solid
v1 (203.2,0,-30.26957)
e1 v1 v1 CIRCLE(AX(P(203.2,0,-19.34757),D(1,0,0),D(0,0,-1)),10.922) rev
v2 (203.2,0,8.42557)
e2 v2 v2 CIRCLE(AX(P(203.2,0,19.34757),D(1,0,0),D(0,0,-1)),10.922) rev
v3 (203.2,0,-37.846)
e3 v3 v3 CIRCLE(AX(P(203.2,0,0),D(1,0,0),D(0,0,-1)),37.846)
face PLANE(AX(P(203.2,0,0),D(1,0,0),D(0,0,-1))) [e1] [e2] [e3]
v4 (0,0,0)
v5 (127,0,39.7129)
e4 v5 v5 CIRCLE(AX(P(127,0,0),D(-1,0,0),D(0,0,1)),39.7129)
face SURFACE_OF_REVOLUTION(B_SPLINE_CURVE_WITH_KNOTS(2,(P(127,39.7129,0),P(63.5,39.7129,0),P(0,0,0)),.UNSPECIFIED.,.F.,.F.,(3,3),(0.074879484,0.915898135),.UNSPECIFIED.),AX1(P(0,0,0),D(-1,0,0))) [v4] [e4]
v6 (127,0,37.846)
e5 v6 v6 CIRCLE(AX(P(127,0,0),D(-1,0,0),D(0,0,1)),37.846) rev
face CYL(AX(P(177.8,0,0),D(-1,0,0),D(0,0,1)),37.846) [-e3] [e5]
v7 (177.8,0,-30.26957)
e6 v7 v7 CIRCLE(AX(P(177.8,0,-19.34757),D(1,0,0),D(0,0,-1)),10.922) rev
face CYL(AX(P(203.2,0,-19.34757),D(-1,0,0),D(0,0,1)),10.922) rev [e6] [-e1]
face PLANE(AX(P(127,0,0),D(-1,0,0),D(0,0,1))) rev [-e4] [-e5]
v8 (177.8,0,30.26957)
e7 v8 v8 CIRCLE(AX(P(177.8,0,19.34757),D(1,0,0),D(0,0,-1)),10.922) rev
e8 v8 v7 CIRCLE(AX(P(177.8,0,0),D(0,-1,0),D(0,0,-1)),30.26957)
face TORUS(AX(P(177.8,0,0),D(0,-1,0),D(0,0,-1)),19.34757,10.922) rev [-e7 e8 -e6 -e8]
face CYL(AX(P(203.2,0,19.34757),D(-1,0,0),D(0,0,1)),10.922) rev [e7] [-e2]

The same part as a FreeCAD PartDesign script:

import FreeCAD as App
import Part
import Sketcher
from FreeCAD import Vector
Q = App.Units.Quantity

doc = App.newDocument("Part")
params = doc.addObject("Spreadsheet::Sheet", "Params")
for row, (alias, value) in enumerate([
    ("revolution_angle", "360 deg"),
    ("sketch2_diameter", "2.98 in"),
    ("pad1_length", "2 in"),
    ("sketch3_diameter", "0.86 in"),
    ("groove_angle", "360 deg"),
    ("sketch4_diameter", "2.98 in"),
    ("sketch4_diameter2", "0.86 in"),
    ("pad2_length", "1 in"),
], start=1):
    params.set(f"A{row}", alias)
    params.set(f"B{row}", "=" + value)
    params.setAlias(f"B{row}", alias)

body = doc.addObject("PartDesign::Body", "Body")

sketch1 = body.newObject("Sketcher::SketchObject", "Sketch")
sketch1.AttachmentSupport = (doc.getObject("XY_Plane"), [""])
sketch1.MapMode = "FlatFace"
sketch1.addGeometry(Part.LineSegment(Vector(127, 0, 0), Vector(127, 39.7129, 0)), False)
sketch1.addGeometry(Part.BSplineCurve([Vector(0, 0, 0), Vector(63.5, 39.7129, 0), Vector(127, 39.7129, 0)], [3, 3], [0.074879484, 0.915898135], False, 2, [1, 1, 1], False), False)
sketch1.addGeometry(Part.LineSegment(Vector(0, 0, 0), Vector(127, 0, 0)), False)
sketch1.addConstraint(Sketcher.Constraint("Block", 1))
sketch1.addConstraint(Sketcher.Constraint("Coincident", 0, 2, 1, 2))
sketch1.addConstraint(Sketcher.Constraint("Coincident", 1, 1, 2, 1))
sketch1.addConstraint(Sketcher.Constraint("Coincident", 2, 2, 0, 1))
sketch1.addConstraint(Sketcher.Constraint("Vertical", 0))
sketch1.addConstraint(Sketcher.Constraint("Horizontal", 2))
revolution = body.newObject("PartDesign::Revolution", "Revolution")
revolution.Profile = sketch1
revolution.ReferenceAxis = (sketch1, ["H_Axis"])
revolution.setExpression("Angle", "Params.revolution_angle")

sketch2 = body.newObject("Sketcher::SketchObject", "Sketch001")
sketch2.AttachmentSupport = (doc.getObject("YZ_Plane"), [""])
sketch2.MapMode = "FlatFace"
sketch2.AttachmentOffset = App.Placement(Vector(0, 0, 5 * 25.4), App.Rotation())
sketch2.addGeometry(Part.Circle(Vector(0, 0, 0), Vector(0, 0, 1), 37.846), False)
sketch2.addConstraint(Sketcher.Constraint("Coincident", 0, 3, -1, 1))
sketch2.addConstraint(Sketcher.Constraint("Diameter", 0, Q("2.98 in")))
sketch2.setExpression("Constraints[1]", "Params.sketch2_diameter")
pad1 = body.newObject("PartDesign::Pad", "Pad")
pad1.Profile = sketch2
pad1.setExpression("Length", "Params.pad1_length")

sketch3 = body.newObject("Sketcher::SketchObject", "Sketch002")
sketch3.AttachmentSupport = (doc.getObject("YZ_Plane"), [""])
sketch3.MapMode = "FlatFace"
sketch3.AttachmentOffset = App.Placement(Vector(0, 0, 7 * 25.4), App.Rotation())
sketch3.addGeometry(Part.Circle(Vector(0, 19.34757, 0), Vector(0, 0, 1), 10.922), False)
sketch3.addConstraint(Sketcher.Constraint("PointOnObject", 0, 3, -2))
sketch3.addConstraint(Sketcher.Constraint("Diameter", 0, Q("0.86 in")))
sketch3.addConstraint(Sketcher.Constraint("DistanceY", -1, 1, 0, 3, 19.34757))
sketch3.setExpression("Constraints[1]", "Params.sketch3_diameter")
groove = body.newObject("PartDesign::Groove", "Groove")
groove.Profile = sketch3
groove.ReferenceAxis = (sketch3, ["H_Axis"])
groove.setExpression("Angle", "Params.groove_angle")

sketch4 = body.newObject("Sketcher::SketchObject", "Sketch003")
sketch4.AttachmentSupport = (doc.getObject("YZ_Plane"), [""])
sketch4.MapMode = "FlatFace"
sketch4.AttachmentOffset = App.Placement(Vector(0, 0, 7 * 25.4), App.Rotation())
sketch4.addGeometry(Part.Circle(Vector(0, 0, 0), Vector(0, 0, 1), 37.846), False)
sketch4.addGeometry(Part.Circle(Vector(0, -19.34757, 0), Vector(0, 0, 1), 10.922), False)
sketch4.addGeometry(Part.Circle(Vector(0, 19.34757, 0), Vector(0, 0, 1), 10.922), False)
sketch4.addConstraint(Sketcher.Constraint("Coincident", 0, 3, -1, 1))
sketch4.addConstraint(Sketcher.Constraint("Equal", 1, 2))
sketch4.addConstraint(Sketcher.Constraint("Symmetric", 1, 3, 2, 3, -1, 1))
sketch4.addConstraint(Sketcher.Constraint("PointOnObject", 1, 3, -2))
sketch4.addConstraint(Sketcher.Constraint("Diameter", 0, Q("2.98 in")))
sketch4.addConstraint(Sketcher.Constraint("Diameter", 1, Q("0.86 in")))
sketch4.addConstraint(Sketcher.Constraint("DistanceY", 1, 3, -1, 1, 19.34757))
sketch4.setExpression("Constraints[4]", "Params.sketch4_diameter")
sketch4.setExpression("Constraints[5]", "Params.sketch4_diameter2")
pad2 = body.newObject("PartDesign::Pad", "Pad001")
pad2.Profile = sketch4
pad2.setExpression("Length", "Params.pad2_length")

doc.recompute()
